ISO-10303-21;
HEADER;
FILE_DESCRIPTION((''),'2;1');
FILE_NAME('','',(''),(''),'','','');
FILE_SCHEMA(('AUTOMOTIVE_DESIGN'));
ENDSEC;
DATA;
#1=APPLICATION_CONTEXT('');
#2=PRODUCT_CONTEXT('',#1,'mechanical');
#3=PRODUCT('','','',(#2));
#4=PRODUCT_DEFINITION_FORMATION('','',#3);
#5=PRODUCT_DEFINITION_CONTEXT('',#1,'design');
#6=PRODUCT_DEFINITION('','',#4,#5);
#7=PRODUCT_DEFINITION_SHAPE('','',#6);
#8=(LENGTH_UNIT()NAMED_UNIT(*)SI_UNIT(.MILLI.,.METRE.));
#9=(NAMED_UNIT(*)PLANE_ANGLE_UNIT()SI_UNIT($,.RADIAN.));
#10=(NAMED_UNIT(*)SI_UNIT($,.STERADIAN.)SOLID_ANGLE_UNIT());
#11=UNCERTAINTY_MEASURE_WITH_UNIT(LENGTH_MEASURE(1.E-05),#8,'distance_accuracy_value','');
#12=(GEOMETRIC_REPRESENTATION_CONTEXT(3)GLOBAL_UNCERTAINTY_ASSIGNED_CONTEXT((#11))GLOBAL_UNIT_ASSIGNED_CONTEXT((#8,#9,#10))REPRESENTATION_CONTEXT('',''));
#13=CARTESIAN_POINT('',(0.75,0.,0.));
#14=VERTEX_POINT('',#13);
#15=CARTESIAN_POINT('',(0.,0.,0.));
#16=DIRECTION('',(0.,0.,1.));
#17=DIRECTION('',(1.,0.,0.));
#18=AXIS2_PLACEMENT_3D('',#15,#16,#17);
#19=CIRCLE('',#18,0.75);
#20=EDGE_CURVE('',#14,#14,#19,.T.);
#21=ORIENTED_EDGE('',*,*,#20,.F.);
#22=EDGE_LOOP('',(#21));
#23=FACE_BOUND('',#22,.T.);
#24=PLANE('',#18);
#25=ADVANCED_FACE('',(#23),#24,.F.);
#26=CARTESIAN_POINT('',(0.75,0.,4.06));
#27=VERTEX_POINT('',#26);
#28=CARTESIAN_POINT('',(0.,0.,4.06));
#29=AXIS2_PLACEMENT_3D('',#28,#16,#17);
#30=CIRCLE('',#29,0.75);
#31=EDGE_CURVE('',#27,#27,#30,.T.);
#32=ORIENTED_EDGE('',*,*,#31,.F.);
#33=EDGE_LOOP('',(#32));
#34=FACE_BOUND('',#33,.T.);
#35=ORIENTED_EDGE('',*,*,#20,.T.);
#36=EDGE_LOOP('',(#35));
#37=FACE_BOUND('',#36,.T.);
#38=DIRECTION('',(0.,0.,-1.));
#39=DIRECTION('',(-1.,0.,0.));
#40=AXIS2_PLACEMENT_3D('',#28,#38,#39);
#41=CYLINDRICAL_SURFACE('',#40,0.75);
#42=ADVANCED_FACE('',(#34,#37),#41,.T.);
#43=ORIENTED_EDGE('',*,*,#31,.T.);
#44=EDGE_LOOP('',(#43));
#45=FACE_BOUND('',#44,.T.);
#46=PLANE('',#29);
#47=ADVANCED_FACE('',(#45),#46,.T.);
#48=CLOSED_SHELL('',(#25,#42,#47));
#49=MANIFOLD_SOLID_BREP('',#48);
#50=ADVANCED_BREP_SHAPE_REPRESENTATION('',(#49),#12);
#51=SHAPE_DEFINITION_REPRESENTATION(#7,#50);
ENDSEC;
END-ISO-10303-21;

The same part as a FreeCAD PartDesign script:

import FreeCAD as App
import Part
import Sketcher
from FreeCAD import Vector
Q = App.Units.Quantity

doc = App.newDocument("Part")
body = doc.addObject("PartDesign::Body", "Body")

sketch1 = doc.addObject("Sketcher::SketchObject", "Sketch")
body.addObject(sketch1)
sketch1.AttachmentSupport = (doc.XY_Plane, [""])
sketch1.MapMode = "FlatFace"
sketch1.addGeometry(Part.Circle(Vector(0, 0, 0), Vector(0, 0, 1), 0.8), False)
sketch1.addConstraint([
    Sketcher.Constraint("Coincident", 0, 3, -1, 1),
    Sketcher.Constraint("Diameter", 0, Q("1.5 mm")),
])
pad1 = doc.addObject("PartDesign::Pad", "Pad")
body.addObject(pad1)
pad1.Profile = sketch1
pad1.Length = 4.06

doc.recompute()
